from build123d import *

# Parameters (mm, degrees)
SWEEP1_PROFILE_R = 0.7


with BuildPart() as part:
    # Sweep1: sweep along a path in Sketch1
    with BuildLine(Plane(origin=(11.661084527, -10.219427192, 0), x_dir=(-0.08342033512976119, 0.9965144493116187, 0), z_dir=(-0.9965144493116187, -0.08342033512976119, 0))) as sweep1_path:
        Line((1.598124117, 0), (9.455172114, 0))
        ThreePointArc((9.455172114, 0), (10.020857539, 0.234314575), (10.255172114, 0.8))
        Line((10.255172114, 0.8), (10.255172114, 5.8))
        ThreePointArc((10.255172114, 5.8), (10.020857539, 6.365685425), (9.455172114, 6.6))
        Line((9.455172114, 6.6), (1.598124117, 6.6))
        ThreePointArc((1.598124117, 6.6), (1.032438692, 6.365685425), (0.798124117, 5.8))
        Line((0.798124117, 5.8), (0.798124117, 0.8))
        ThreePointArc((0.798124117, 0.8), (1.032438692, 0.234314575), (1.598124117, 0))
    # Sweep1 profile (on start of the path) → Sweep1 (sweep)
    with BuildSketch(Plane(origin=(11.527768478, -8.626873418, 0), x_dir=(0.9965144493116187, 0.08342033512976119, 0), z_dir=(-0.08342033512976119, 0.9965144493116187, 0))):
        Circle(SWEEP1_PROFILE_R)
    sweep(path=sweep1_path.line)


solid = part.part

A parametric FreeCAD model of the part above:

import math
import FreeCAD as App
import Part
import Sketcher

doc = App.newDocument("Part")
body = doc.addObject("PartDesign::Body", "Body")

# Sketch on an angled plane
sketch1 = body.newObject("Sketcher::SketchObject", "Sketch")
sketch1.Placement = App.Placement(App.Vector(11.527768, -8.626873, 0), App.Rotation(App.Vector(0.996514449, 0.083420335, 0), App.Vector(0, 0, -0.999999999), App.Vector(-0.083420335, 0.996514449, 0), "ZXY"))
sketch1.addGeometry(Part.Circle(App.Vector(0, 0, 0), App.Vector(0, 0, 1), 0.7), False)
sketch1.addConstraint(Sketcher.Constraint("Coincident", 0, 3, -1, 1))
sketch1.addConstraint(Sketcher.Constraint("Diameter", 0, 1.4))

# Sketch on an angled plane
sketch2 = body.newObject("Sketcher::SketchObject", "Sketch001")
sketch2.Placement = App.Placement(App.Vector(10.730399, 0.898264, 0), App.Rotation(App.Vector(-0.083420335, 0.996514449, 0), App.Vector(0, 0, 0.999999999), App.Vector(0.996514449, 0.083420335, 0), "ZXY"))
sketch2.addGeometry(Part.LineSegment(App.Vector(-9.558454, 0, 0), App.Vector(-1.701406, 0, 0)), False)
sketch2.addGeometry(Part.ArcOfCircle(Part.Circle(App.Vector(-1.701406, -0.8, 0), App.Vector(0, 0, 1), 0.8), math.radians(0), math.radians(90)), False)
sketch2.addGeometry(Part.LineSegment(App.Vector(-0.901406, -0.8, 0), App.Vector(-0.901406, -5.8, 0)), False)
sketch2.addGeometry(Part.ArcOfCircle(Part.Circle(App.Vector(-1.701406, -5.8, 0), App.Vector(0, 0, 1), 0.8), math.radians(-90), math.radians(0)), False)
sketch2.addGeometry(Part.LineSegment(App.Vector(-1.701406, -6.6, 0), App.Vector(-9.558454, -6.6, 0)), False)
sketch2.addGeometry(Part.ArcOfCircle(Part.Circle(App.Vector(-9.558454, -5.8, 0), App.Vector(0, 0, 1), 0.8), math.radians(180), math.radians(270)), False)
sketch2.addGeometry(Part.LineSegment(App.Vector(-10.358454, -5.8, 0), App.Vector(-10.358454, -0.8, 0)), False)
sketch2.addGeometry(Part.ArcOfCircle(Part.Circle(App.Vector(-9.558454, -0.8, 0), App.Vector(0, 0, 1), 0.8), math.radians(90), math.radians(180)), False)
sketch2.addConstraint(Sketcher.Constraint("Tangent", 0, 2, 1, 2))
sketch2.addConstraint(Sketcher.Constraint("Tangent", 1, 1, 2, 1))
sketch2.addConstraint(Sketcher.Constraint("Tangent", 2, 2, 3, 2))
sketch2.addConstraint(Sketcher.Constraint("Tangent", 3, 1, 4, 1))
sketch2.addConstraint(Sketcher.Constraint("Tangent", 4, 2, 5, 2))
sketch2.addConstraint(Sketcher.Constraint("Tangent", 5, 1, 6, 1))
sketch2.addConstraint(Sketcher.Constraint("Tangent", 6, 2, 7, 2))
sketch2.addConstraint(Sketcher.Constraint("Tangent", 7, 1, 0, 1))
sketch2.addConstraint(Sketcher.Constraint("Horizontal", 0))
sketch2.addConstraint(Sketcher.Constraint("Vertical", 2))
sketch2.addConstraint(Sketcher.Constraint("Horizontal", 4))
sketch2.addConstraint(Sketcher.Constraint("Vertical", 6))
sketch2.addConstraint(Sketcher.Constraint("Equal", 1, 3))
sketch2.addConstraint(Sketcher.Constraint("Equal", 3, 5))
sketch2.addConstraint(Sketcher.Constraint("Equal", 5, 7))
sketch2.addConstraint(Sketcher.Constraint("PointOnObject", 0, 2, -1))
sketch2.addConstraint(Sketcher.Constraint("Radius", 1, 0.8))
sketch2.addConstraint(Sketcher.Constraint("DistanceY", 2, 2, 2, 1, 5.0))
sketch2.addConstraint(Sketcher.Constraint("DistanceX", 0, 1, 0, 2, 7.857048))
sketch2.addConstraint(Sketcher.Constraint("DistanceX", 1, 3, -1, 1, 1.701406))
doc.recompute()

additivepipe = body.newObject("PartDesign::AdditivePipe", "AdditivePipe")
additivepipe.Profile = sketch1
additivepipe.Spine = (sketch2, ["Edge1", "Edge2", "Edge3", "Edge4", "Edge5", "Edge6", "Edge7", "Edge8"])

doc.recompute()
